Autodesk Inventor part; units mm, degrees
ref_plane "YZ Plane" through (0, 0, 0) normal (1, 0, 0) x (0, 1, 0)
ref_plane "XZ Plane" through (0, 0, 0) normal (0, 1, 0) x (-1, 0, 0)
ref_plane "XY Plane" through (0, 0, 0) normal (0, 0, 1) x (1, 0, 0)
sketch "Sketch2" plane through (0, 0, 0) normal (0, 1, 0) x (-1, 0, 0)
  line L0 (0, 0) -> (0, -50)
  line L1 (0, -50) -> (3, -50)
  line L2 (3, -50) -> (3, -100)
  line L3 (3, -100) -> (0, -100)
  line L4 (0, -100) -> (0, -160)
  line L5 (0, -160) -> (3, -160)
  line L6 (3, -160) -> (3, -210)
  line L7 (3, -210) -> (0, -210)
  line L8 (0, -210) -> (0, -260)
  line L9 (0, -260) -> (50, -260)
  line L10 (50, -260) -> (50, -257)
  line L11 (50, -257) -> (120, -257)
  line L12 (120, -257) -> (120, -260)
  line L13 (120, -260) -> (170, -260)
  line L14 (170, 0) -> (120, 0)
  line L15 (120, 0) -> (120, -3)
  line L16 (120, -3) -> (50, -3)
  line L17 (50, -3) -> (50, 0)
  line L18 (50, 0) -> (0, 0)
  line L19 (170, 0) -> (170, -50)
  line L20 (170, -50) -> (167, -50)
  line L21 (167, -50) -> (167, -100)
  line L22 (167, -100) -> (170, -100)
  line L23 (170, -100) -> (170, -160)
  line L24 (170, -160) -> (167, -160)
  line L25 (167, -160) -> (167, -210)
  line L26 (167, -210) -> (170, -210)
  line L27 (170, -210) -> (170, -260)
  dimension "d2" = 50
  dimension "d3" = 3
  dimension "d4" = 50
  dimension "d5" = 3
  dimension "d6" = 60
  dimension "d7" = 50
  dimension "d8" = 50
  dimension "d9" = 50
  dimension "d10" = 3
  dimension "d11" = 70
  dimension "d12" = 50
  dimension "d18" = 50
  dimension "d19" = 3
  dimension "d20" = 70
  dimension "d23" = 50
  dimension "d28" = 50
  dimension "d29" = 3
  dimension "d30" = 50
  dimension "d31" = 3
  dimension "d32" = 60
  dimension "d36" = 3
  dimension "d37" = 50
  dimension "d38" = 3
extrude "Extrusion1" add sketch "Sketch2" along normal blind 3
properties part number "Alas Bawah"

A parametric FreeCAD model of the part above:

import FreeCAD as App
import Part
import Sketcher
from FreeCAD import Vector
Q = App.Units.Quantity


def add_polygon(sketch, points):
    """Adds a closed chain of lines whose ends are joined by coincident constraints."""
    first, n = sketch.GeometryCount, len(points)
    for a, b in zip(points, points[1:] + points[:1]):
        sketch.addGeometry(Part.LineSegment(App.Vector(*a, 0), App.Vector(*b, 0)), False)
    for i in range(n):
        sketch.addConstraint(Sketcher.Constraint("Coincident", first + i, 2, first + (i + 1) % n, 1))

doc = App.newDocument("Part")
body = doc.addObject("PartDesign::Body", "Body")

# Sketch on XZ plane
sketch1 = body.newObject("Sketcher::SketchObject", "Sketch")
sketch1.AttachmentSupport = (doc.getObject("XZ_Plane"), [""])
sketch1.MapMode = "FlatFace"
add_polygon(sketch1, [(-50, 0), (0, 0), (0, -50), (-3, -50), (-3, -100), (0, -100), (0, -160), (-3, -160), (-3, -210), (0, -210), (0, -260), (-50, -260), (-50, -257), (-120, -257), (-120, -260), (-170, -260), (-170, -210), (-167, -210), (-167, -160), (-170, -160), (-170, -100), (-167, -100), (-167, -50), (-170, -50), (-170, 0), (-120, 0), (-120, -3), (-50, -3)])  # lines 0-27
sketch1.addConstraint(Sketcher.Constraint("Horizontal", 0))
sketch1.addConstraint(Sketcher.Constraint("Vertical", 1))
sketch1.addConstraint(Sketcher.Constraint("Horizontal", 2))
sketch1.addConstraint(Sketcher.Constraint("Vertical", 3))
sketch1.addConstraint(Sketcher.Constraint("Horizontal", 4))
sketch1.addConstraint(Sketcher.Constraint("Vertical", 5))
sketch1.addConstraint(Sketcher.Constraint("Horizontal", 6))
sketch1.addConstraint(Sketcher.Constraint("Vertical", 7))
sketch1.addConstraint(Sketcher.Constraint("Horizontal", 8))
sketch1.addConstraint(Sketcher.Constraint("Vertical", 9))
sketch1.addConstraint(Sketcher.Constraint("Horizontal", 10))
sketch1.addConstraint(Sketcher.Constraint("Vertical", 11))
sketch1.addConstraint(Sketcher.Constraint("Horizontal", 12))
sketch1.addConstraint(Sketcher.Constraint("Vertical", 13))
sketch1.addConstraint(Sketcher.Constraint("Horizontal", 14))
sketch1.addConstraint(Sketcher.Constraint("Vertical", 15))
sketch1.addConstraint(Sketcher.Constraint("Horizontal", 16))
sketch1.addConstraint(Sketcher.Constraint("Vertical", 17))
sketch1.addConstraint(Sketcher.Constraint("Horizontal", 18))
sketch1.addConstraint(Sketcher.Constraint("Vertical", 19))
sketch1.addConstraint(Sketcher.Constraint("Horizontal", 20))
sketch1.addConstraint(Sketcher.Constraint("Vertical", 21))
sketch1.addConstraint(Sketcher.Constraint("Horizontal", 22))
sketch1.addConstraint(Sketcher.Constraint("Vertical", 23))
sketch1.addConstraint(Sketcher.Constraint("Horizontal", 24))
sketch1.addConstraint(Sketcher.Constraint("Vertical", 25))
sketch1.addConstraint(Sketcher.Constraint("Horizontal", 26))
sketch1.addConstraint(Sketcher.Constraint("Vertical", 27))
sketch1.addConstraint(Sketcher.Constraint("Coincident", 0, 2, -1, 1))
sketch1.addConstraint(Sketcher.Constraint("PointOnObject", 4, 2, -2))
sketch1.addConstraint(Sketcher.Constraint("PointOnObject", 8, 2, -2))
sketch1.addConstraint(Sketcher.Constraint("PointOnObject", 23, 2, -1))
sketch1.addConstraint(Sketcher.Constraint("Horizontal", 10, 2, 13, 2))
sketch1.addConstraint(Sketcher.Constraint("Horizontal", 8, 2, 15, 2))
sketch1.addConstraint(Sketcher.Constraint("Horizontal", 6, 2, 17, 2))
sketch1.addConstraint(Sketcher.Constraint("Horizontal", 4, 2, 19, 2))
sketch1.addConstraint(Sketcher.Constraint("Horizontal", 2, 2, 21, 2))
sketch1.addConstraint(Sketcher.Constraint("Vertical", 3, 2, 6, 2))
sketch1.addConstraint(Sketcher.Constraint("Vertical", 15, 2, 18, 2))
sketch1.addConstraint(Sketcher.Constraint("Vertical", 17, 2, 20, 2))
sketch1.addConstraint(Sketcher.Constraint("Vertical", 19, 2, 22, 2))
sketch1.addConstraint(Sketcher.Constraint("Vertical", 13, 2, 24, 2))
sketch1.addConstraint(Sketcher.Constraint("Vertical", 11, 2, 26, 2))
sketch1.addConstraint(Sketcher.Constraint("Equal", 10, 14))
sketch1.addConstraint(Sketcher.Constraint("Equal", 8, 16))
sketch1.addConstraint(Sketcher.Constraint("Equal", 24, 1))
sketch1.addConstraint(Sketcher.Constraint("Equal", 1, 3))
sketch1.addConstraint(Sketcher.Constraint("Equal", 3, 7))
sketch1.addConstraint(Sketcher.Constraint("Equal", 7, 9))
sketch1.addConstraint(Sketcher.Constraint("Equal", 22, 11))
sketch1.addConstraint(Sketcher.Constraint("Equal", 13, 25))
sketch1.addConstraint(Sketcher.Constraint("DistanceX", 0, 1, 0, 2, Q("50 mm")))
sketch1.addConstraint(Sketcher.Constraint("DistanceX", 2, 2, 2, 1, Q("3 mm")))
sketch1.addConstraint(Sketcher.Constraint("DistanceX", 12, 2, 12, 1, Q("70 mm")))
sketch1.addConstraint(Sketcher.Constraint("DistanceY", 5, 2, 5, 1, Q("60 mm")))
pad1 = body.newObject("PartDesign::Pad", "Pad")
pad1.Profile = sketch1
pad1.Length = 3
pad1.Reversed = True

doc.recompute()
